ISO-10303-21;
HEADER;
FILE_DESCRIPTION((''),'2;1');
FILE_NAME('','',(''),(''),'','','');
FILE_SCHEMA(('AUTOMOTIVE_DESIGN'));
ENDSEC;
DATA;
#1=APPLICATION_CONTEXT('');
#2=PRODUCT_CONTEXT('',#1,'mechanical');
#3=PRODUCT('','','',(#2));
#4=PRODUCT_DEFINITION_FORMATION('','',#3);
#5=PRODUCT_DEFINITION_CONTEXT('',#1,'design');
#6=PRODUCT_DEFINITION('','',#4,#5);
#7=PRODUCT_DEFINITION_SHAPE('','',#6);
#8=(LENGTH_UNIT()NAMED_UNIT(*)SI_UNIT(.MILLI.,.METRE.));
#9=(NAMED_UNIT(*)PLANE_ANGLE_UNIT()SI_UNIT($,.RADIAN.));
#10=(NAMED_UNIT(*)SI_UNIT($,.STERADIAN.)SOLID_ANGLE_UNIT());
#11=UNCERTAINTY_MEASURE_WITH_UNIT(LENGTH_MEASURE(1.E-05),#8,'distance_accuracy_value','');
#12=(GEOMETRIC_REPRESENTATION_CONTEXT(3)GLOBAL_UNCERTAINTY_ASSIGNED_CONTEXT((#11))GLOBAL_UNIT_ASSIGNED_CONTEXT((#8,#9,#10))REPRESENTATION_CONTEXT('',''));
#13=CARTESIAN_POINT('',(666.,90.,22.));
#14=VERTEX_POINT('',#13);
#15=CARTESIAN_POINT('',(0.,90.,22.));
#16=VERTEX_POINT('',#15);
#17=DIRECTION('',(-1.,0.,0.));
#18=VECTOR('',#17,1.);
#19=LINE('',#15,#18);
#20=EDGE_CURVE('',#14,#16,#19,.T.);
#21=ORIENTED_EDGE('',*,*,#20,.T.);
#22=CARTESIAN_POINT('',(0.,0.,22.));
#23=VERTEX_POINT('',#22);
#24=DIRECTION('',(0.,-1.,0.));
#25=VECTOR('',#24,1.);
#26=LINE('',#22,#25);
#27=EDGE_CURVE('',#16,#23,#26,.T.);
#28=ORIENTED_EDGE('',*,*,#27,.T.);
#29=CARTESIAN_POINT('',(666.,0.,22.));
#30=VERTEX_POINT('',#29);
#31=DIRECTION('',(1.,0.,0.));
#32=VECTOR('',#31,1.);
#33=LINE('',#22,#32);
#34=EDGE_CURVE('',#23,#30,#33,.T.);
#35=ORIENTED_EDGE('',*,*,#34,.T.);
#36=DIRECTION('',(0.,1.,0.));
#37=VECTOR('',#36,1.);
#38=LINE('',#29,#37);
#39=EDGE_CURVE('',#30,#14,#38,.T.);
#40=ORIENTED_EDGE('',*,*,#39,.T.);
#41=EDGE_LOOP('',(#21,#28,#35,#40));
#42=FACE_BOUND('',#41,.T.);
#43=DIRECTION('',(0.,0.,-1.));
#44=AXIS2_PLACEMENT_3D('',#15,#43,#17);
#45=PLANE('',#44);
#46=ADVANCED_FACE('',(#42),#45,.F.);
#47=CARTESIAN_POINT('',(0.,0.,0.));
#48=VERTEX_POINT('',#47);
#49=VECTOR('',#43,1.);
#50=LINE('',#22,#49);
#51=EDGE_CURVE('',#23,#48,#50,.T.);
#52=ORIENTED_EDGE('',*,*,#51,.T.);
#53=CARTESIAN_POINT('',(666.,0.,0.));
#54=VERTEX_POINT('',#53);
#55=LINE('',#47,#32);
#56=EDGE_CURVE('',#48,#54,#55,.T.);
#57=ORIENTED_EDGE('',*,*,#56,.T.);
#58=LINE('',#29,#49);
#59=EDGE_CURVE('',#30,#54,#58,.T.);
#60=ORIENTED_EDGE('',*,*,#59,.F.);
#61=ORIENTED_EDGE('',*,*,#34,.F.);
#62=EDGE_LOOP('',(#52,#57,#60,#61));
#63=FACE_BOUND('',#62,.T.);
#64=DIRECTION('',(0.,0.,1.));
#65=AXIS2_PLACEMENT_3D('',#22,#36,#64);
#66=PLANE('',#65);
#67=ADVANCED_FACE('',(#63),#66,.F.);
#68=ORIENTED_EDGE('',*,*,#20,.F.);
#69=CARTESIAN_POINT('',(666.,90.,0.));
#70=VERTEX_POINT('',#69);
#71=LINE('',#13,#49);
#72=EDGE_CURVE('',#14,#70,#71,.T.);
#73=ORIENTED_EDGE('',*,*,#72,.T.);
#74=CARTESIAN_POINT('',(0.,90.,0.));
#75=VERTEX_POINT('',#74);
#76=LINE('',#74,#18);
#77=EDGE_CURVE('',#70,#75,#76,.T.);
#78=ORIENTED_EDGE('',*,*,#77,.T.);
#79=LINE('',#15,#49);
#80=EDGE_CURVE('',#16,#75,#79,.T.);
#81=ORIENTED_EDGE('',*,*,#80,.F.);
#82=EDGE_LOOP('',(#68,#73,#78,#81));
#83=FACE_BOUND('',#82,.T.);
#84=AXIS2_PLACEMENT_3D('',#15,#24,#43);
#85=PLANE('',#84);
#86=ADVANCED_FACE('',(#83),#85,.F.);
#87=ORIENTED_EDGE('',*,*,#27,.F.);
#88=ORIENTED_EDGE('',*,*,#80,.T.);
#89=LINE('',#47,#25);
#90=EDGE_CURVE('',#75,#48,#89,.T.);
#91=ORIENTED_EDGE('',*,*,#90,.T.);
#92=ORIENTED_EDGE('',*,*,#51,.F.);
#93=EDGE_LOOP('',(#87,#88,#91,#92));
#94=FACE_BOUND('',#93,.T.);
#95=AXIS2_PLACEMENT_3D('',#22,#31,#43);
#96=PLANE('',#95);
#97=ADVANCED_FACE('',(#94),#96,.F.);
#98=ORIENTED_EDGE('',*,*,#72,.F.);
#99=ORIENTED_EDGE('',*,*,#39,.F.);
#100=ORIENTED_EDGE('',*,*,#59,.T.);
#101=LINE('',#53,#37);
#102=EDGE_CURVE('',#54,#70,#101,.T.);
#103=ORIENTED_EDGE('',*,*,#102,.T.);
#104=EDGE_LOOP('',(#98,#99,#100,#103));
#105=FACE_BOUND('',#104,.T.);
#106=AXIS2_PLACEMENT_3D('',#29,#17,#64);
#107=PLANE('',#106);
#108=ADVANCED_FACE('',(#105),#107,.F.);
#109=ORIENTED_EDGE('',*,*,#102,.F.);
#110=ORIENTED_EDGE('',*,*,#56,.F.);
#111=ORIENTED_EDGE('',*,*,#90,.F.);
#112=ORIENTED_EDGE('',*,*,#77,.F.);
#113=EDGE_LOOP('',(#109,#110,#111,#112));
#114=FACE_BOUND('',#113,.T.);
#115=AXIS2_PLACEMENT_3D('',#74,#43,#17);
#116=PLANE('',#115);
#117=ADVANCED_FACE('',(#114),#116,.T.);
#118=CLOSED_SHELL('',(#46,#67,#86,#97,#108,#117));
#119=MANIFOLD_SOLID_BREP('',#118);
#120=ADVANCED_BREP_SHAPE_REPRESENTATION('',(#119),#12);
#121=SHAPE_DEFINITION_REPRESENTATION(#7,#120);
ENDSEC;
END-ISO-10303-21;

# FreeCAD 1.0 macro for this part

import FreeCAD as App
import Part
import Sketcher


def add_polygon(sketch, points):
    """Adds a closed chain of lines whose ends are joined by coincident constraints."""
    first, n = sketch.GeometryCount, len(points)
    for a, b in zip(points, points[1:] + points[:1]):
        sketch.addGeometry(Part.LineSegment(App.Vector(*a, 0), App.Vector(*b, 0)), False)
    for i in range(n):
        sketch.addConstraint(Sketcher.Constraint("Coincident", first + i, 2, first + (i + 1) % n, 1))

doc = App.newDocument("Part")
body = doc.addObject("PartDesign::Body", "Body")

# Sketch on XY plane
sketch1 = body.newObject("Sketcher::SketchObject", "Sketch")
sketch1.AttachmentSupport = (doc.getObject("XY_Plane"), [""])
sketch1.MapMode = "FlatFace"
add_polygon(sketch1, [(0, 90), (0, 0), (666, 0), (666, 90)])  # lines 0-3
sketch1.addConstraint(Sketcher.Constraint("Vertical", 0))
sketch1.addConstraint(Sketcher.Constraint("Horizontal", 1))
sketch1.addConstraint(Sketcher.Constraint("Vertical", 2))
sketch1.addConstraint(Sketcher.Constraint("Horizontal", 3))
sketch1.addConstraint(Sketcher.Constraint("Coincident", 0, 2, -1, 1))
sketch1.addConstraint(Sketcher.Constraint("DistanceX", 1, 1, 1, 2, 666.0))
sketch1.addConstraint(Sketcher.Constraint("DistanceY", 0, 2, 0, 1, 90.0))
pad1 = body.newObject("PartDesign::Pad", "Pad")
pad1.Profile = sketch1
pad1.Length = 22

doc.recompute()
